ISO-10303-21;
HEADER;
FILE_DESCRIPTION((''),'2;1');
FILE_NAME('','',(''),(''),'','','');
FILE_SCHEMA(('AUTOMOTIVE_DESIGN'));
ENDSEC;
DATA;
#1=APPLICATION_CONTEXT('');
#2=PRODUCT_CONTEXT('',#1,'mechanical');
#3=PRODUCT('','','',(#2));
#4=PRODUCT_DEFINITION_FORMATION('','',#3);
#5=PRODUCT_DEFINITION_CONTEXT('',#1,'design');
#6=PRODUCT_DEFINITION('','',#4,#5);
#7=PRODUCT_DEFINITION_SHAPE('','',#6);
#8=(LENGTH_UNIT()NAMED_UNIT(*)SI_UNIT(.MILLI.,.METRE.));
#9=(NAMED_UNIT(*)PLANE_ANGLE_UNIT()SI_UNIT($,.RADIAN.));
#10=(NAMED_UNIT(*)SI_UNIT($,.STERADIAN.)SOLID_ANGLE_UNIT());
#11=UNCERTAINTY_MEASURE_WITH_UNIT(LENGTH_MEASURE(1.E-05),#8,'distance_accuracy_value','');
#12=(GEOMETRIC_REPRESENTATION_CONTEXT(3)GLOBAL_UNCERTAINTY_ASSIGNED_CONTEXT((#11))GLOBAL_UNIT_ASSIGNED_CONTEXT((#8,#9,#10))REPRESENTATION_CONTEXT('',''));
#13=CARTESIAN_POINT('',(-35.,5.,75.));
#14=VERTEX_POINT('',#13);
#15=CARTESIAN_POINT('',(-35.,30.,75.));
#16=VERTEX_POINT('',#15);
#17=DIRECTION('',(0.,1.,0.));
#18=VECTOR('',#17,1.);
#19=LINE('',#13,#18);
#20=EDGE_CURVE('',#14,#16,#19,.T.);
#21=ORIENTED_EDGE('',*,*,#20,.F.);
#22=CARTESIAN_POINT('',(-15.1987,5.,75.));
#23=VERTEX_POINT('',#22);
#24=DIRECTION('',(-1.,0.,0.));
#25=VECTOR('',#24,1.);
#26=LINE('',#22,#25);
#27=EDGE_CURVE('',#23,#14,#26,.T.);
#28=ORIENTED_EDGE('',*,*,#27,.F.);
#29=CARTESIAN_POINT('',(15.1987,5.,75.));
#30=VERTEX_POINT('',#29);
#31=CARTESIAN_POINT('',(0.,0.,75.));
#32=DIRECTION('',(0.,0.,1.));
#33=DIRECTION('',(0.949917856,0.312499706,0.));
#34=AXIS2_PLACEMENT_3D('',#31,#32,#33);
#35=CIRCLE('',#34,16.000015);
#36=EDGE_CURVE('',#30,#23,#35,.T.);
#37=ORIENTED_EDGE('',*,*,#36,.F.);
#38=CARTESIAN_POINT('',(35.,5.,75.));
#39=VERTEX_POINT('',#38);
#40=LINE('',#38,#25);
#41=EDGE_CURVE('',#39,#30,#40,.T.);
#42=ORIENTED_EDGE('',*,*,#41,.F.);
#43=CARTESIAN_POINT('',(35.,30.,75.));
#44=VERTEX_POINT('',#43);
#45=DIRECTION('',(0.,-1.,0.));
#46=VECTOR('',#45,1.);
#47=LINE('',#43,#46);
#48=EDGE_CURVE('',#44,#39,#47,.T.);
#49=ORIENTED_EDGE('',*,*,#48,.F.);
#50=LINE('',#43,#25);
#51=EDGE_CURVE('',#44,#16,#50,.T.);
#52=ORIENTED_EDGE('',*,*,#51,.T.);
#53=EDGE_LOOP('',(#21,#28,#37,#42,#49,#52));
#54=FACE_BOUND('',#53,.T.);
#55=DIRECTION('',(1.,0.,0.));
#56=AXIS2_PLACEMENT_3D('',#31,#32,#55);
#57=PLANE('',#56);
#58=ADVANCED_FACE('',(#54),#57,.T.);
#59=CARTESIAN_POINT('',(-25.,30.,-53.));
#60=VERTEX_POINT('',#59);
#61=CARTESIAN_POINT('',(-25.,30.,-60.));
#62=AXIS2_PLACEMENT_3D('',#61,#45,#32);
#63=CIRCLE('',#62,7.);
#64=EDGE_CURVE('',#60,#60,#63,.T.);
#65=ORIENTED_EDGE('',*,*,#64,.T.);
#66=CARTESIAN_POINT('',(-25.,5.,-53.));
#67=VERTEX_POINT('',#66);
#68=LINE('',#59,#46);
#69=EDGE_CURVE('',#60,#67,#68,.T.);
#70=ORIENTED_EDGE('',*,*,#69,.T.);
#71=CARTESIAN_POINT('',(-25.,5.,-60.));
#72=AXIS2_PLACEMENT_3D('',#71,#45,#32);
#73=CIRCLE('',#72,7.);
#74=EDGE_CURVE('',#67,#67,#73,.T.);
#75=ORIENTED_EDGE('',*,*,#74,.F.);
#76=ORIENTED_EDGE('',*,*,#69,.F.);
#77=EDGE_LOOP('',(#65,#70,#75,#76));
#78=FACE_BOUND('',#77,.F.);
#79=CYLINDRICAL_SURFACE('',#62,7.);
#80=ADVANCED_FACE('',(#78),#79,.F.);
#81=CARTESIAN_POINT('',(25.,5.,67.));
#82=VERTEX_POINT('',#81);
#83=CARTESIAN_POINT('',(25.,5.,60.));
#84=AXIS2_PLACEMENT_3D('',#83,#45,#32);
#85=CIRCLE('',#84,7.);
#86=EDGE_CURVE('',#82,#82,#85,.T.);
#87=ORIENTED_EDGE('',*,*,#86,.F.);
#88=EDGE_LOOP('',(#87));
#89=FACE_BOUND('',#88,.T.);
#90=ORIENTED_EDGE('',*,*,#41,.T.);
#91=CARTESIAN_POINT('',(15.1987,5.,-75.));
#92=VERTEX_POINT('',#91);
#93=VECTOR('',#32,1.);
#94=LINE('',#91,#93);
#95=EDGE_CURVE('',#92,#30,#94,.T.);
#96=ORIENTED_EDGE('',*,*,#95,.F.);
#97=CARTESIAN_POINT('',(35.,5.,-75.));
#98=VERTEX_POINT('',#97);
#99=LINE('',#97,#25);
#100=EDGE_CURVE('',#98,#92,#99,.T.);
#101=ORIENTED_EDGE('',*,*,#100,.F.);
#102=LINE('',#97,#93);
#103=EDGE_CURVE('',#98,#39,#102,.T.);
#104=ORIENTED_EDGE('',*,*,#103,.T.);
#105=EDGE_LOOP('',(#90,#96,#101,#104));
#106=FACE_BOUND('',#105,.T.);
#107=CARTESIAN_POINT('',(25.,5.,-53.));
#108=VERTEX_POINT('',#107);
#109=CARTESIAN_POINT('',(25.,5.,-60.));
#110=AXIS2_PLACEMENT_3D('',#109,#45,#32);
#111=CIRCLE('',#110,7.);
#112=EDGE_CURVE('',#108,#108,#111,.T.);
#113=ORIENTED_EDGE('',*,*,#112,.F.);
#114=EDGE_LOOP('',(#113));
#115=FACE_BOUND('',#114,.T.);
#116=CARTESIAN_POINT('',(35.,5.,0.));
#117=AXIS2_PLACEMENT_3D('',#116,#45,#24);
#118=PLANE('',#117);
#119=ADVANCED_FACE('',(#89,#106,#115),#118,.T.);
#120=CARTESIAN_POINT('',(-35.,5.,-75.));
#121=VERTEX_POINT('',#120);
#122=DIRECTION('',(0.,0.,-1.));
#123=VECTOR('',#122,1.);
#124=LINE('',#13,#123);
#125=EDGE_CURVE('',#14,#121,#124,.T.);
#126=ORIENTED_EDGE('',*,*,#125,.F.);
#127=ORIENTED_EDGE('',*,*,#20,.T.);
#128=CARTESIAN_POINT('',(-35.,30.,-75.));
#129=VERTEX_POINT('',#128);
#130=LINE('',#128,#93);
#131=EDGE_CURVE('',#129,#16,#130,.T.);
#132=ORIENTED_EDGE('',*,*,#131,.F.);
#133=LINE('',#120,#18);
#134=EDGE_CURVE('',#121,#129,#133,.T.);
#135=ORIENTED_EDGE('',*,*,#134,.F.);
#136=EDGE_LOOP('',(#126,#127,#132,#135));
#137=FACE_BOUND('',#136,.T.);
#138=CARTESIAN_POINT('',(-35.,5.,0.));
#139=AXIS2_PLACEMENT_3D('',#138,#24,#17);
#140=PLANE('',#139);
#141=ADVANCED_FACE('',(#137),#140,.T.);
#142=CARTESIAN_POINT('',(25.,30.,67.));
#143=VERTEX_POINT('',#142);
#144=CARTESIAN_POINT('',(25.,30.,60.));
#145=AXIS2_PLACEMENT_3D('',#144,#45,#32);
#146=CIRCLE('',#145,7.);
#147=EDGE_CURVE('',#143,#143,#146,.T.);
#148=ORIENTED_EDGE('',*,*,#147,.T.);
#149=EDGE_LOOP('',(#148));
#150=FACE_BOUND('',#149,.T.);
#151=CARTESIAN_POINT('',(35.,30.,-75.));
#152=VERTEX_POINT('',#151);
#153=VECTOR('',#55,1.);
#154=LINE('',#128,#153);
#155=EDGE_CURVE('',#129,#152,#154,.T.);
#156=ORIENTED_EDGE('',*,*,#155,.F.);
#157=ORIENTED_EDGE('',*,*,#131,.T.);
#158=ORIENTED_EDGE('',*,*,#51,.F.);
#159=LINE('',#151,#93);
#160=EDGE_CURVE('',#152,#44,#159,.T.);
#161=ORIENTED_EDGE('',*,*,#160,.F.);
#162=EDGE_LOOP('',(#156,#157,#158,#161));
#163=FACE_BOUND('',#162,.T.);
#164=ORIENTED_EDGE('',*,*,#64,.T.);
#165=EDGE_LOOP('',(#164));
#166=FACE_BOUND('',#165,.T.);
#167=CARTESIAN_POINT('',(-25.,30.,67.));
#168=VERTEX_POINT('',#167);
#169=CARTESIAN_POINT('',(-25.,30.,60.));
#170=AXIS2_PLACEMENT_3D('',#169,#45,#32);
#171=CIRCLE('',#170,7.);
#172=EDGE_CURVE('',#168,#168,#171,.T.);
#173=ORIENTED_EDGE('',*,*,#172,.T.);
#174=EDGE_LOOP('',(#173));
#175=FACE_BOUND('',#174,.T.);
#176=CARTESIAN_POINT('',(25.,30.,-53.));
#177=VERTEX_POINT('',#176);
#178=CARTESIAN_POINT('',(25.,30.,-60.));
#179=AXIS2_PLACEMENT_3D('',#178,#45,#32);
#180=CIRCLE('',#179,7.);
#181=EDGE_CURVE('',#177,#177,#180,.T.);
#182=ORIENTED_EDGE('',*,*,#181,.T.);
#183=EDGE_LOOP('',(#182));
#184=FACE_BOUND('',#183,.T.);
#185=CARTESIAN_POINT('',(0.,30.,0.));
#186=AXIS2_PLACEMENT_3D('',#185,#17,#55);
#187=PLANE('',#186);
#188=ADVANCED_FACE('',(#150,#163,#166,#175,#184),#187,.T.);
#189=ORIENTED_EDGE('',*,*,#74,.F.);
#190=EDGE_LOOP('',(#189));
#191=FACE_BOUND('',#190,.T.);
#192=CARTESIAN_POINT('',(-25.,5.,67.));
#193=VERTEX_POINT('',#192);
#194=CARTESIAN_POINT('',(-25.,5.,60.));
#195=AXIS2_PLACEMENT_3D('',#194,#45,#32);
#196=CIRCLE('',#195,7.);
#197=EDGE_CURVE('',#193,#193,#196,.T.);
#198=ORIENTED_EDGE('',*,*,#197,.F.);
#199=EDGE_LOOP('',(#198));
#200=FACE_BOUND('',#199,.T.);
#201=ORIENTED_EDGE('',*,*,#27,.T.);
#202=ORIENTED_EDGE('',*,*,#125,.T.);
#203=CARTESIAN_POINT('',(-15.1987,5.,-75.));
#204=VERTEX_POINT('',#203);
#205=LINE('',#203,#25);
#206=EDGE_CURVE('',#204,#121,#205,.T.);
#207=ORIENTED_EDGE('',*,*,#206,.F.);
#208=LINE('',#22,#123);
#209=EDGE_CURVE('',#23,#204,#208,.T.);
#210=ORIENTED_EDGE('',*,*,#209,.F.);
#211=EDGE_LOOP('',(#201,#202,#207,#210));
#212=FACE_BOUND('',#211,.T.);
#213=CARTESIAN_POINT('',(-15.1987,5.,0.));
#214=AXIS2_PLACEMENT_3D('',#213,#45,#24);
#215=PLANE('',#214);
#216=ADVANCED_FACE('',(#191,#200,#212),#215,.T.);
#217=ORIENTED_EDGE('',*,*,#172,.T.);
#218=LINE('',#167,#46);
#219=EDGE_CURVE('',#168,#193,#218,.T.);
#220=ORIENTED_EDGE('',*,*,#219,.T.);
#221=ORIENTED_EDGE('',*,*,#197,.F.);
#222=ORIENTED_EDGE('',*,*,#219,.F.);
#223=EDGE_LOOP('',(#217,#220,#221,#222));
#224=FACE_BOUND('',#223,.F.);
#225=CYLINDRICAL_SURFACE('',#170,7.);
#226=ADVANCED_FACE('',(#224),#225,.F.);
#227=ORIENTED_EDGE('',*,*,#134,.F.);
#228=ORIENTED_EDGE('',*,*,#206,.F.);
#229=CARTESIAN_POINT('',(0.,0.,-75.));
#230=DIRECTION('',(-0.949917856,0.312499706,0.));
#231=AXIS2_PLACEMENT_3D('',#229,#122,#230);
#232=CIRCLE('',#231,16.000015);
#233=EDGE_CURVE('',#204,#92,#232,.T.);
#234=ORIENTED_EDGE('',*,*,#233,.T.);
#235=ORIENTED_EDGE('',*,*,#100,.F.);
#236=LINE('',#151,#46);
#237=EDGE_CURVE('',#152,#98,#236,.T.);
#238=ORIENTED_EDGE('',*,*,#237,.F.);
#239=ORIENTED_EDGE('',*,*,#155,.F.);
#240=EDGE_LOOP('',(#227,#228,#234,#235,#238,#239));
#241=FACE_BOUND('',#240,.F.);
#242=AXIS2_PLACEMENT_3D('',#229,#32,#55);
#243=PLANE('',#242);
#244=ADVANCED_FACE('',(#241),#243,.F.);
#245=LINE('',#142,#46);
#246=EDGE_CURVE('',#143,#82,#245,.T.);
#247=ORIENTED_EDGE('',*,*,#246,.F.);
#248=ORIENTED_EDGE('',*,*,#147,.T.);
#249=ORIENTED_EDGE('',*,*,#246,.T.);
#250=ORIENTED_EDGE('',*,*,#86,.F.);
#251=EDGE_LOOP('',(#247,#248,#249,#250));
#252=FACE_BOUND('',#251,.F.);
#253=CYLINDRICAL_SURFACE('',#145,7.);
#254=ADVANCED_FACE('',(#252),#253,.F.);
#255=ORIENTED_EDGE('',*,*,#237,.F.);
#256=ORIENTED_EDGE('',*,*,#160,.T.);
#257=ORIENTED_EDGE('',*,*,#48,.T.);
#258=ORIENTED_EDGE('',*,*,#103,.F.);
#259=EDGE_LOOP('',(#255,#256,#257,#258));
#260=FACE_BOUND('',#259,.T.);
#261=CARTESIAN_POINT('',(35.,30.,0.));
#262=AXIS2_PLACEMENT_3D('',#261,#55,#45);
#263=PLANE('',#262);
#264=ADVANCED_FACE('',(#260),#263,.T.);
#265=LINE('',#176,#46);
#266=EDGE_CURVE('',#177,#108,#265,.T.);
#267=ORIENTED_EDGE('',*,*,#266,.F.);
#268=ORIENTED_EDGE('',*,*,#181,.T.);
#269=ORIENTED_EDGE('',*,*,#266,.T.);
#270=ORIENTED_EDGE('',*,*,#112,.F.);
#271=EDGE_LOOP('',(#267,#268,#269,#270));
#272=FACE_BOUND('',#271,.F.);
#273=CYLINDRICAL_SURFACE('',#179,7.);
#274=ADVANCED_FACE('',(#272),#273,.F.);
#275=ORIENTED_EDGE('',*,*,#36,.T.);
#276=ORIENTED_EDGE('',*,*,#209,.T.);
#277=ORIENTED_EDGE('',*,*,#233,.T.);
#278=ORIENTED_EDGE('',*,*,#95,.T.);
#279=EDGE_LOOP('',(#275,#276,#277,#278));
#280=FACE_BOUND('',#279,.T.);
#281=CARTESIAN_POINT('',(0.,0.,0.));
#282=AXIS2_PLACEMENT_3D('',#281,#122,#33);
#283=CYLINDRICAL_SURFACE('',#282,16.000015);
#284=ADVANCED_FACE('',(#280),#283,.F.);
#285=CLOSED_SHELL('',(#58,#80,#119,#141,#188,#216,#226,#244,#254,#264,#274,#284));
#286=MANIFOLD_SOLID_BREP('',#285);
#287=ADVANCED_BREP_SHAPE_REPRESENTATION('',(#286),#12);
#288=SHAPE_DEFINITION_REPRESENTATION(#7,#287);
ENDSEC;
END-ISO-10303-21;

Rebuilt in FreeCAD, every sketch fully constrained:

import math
import FreeCAD as App
import Part
import Sketcher

V = App.Vector
Q = App.Units.Quantity

doc = App.newDocument("Part")
body = doc.addObject("PartDesign::Body", "Body")

sketch1 = doc.addObject("Sketcher::SketchObject", "Sketch")
body.addObject(sketch1)
sketch1.AttachmentSupport = (doc.XY_Plane, [""])
sketch1.MapMode = "FlatFace"
sketch1.addGeometry(Part.LineSegment(V(15.1987, 5, 0), V(35, 5, 0)), False)
sketch1.addGeometry(Part.LineSegment(V(35, 5, 0), V(35, 30, 0)), False)
sketch1.addGeometry(Part.LineSegment(V(35, 30, 0), V(-35, 30, 0)), False)
sketch1.addGeometry(Part.LineSegment(V(-35, 30, 0), V(-35, 5, 0)), False)
sketch1.addGeometry(Part.LineSegment(V(-35, 5, 0), V(-15.1987, 5, 0)), False)
sketch1.addGeometry(Part.ArcOfCircle(Part.Circle(V(0, 0, 0), V(0, 0, 1), 16.000015), math.radians(18.209939), math.radians(161.790061)), False)
sketch1.addConstraint(Sketcher.Constraint("Coincident", 0, 2, 1, 1))
sketch1.addConstraint(Sketcher.Constraint("Coincident", 1, 2, 2, 1))
sketch1.addConstraint(Sketcher.Constraint("Coincident", 2, 2, 3, 1))
sketch1.addConstraint(Sketcher.Constraint("Coincident", 3, 2, 4, 1))
sketch1.addConstraint(Sketcher.Constraint("Coincident", 4, 2, 5, 2))
sketch1.addConstraint(Sketcher.Constraint("Coincident", 5, 1, 0, 1))
sketch1.addConstraint(Sketcher.Constraint("Horizontal", 0))
sketch1.addConstraint(Sketcher.Constraint("Vertical", 1))
sketch1.addConstraint(Sketcher.Constraint("Horizontal", 2))
sketch1.addConstraint(Sketcher.Constraint("Vertical", 3))
sketch1.addConstraint(Sketcher.Constraint("Horizontal", 4))
sketch1.addConstraint(Sketcher.Constraint("Coincident", 5, 3, -1, 1))
sketch1.addConstraint(Sketcher.Constraint("Symmetric", 0, 2, 3, 2, -2))
sketch1.addConstraint(Sketcher.Constraint("Radius", 5, Q("16 mm")))
sketch1.addConstraint(Sketcher.Constraint("DistanceX", 2, 2, 2, 1, Q("70 mm")))
sketch1.addConstraint(Sketcher.Constraint("DistanceY", 1, 1, 1, 2, Q("25 mm")))
sketch1.addConstraint(Sketcher.Constraint("DistanceY", -1, 1, 0, 2, Q("5 mm")))
pad1 = doc.addObject("PartDesign::Pad", "Pad")
body.addObject(pad1)
pad1.Profile = sketch1
pad1.Length = 150
pad1.Midplane = True

sketch2 = doc.addObject("Sketcher::SketchObject", "Sketch001")
body.addObject(sketch2)
sketch2.AttachmentSupport = (doc.XZ_Plane, [""])
sketch2.MapMode = "FlatFace"
sketch2.AttachmentOffset = App.Placement(V(0, 0, -30), App.Rotation())
sketch2.addGeometry(Part.Circle(V(-25, -60, 0), V(0, 0, 1), 7), False)
sketch2.addGeometry(Part.Circle(V(25, -60, 0), V(0, 0, 1), 7), False)
sketch2.addGeometry(Part.Circle(V(-25, 60, 0), V(0, 0, 1), 7), False)
sketch2.addGeometry(Part.Circle(V(25, 60, 0), V(0, 0, 1), 7), False)
sketch2.addConstraint(Sketcher.Constraint("Equal", 0, 1))
sketch2.addConstraint(Sketcher.Constraint("Equal", 1, 2))
sketch2.addConstraint(Sketcher.Constraint("Equal", 2, 3))
sketch2.addConstraint(Sketcher.Constraint("Symmetric", 1, 3, 2, 3, -1, 1))
sketch2.addConstraint(Sketcher.Constraint("Symmetric", 0, 3, 3, 3, -1, 1))
sketch2.addConstraint(Sketcher.Constraint("Symmetric", 0, 3, 1, 3, -2))
sketch2.addConstraint(Sketcher.Constraint("Diameter", 0, Q("14 mm")))
sketch2.addConstraint(Sketcher.Constraint("DistanceX", 0, 3, -1, 1, Q("25 mm")))
sketch2.addConstraint(Sketcher.Constraint("DistanceY", 0, 3, -1, 1, Q("60 mm")))
doc.recompute()
hole = doc.addObject("PartDesign::Hole", "Hole")
body.addObject(hole)
hole.Profile = sketch2
hole.ThreadType = "None"
hole.Diameter = 14
hole.DepthType = "ThroughAll"
hole.Reversed = True

doc.recompute()
